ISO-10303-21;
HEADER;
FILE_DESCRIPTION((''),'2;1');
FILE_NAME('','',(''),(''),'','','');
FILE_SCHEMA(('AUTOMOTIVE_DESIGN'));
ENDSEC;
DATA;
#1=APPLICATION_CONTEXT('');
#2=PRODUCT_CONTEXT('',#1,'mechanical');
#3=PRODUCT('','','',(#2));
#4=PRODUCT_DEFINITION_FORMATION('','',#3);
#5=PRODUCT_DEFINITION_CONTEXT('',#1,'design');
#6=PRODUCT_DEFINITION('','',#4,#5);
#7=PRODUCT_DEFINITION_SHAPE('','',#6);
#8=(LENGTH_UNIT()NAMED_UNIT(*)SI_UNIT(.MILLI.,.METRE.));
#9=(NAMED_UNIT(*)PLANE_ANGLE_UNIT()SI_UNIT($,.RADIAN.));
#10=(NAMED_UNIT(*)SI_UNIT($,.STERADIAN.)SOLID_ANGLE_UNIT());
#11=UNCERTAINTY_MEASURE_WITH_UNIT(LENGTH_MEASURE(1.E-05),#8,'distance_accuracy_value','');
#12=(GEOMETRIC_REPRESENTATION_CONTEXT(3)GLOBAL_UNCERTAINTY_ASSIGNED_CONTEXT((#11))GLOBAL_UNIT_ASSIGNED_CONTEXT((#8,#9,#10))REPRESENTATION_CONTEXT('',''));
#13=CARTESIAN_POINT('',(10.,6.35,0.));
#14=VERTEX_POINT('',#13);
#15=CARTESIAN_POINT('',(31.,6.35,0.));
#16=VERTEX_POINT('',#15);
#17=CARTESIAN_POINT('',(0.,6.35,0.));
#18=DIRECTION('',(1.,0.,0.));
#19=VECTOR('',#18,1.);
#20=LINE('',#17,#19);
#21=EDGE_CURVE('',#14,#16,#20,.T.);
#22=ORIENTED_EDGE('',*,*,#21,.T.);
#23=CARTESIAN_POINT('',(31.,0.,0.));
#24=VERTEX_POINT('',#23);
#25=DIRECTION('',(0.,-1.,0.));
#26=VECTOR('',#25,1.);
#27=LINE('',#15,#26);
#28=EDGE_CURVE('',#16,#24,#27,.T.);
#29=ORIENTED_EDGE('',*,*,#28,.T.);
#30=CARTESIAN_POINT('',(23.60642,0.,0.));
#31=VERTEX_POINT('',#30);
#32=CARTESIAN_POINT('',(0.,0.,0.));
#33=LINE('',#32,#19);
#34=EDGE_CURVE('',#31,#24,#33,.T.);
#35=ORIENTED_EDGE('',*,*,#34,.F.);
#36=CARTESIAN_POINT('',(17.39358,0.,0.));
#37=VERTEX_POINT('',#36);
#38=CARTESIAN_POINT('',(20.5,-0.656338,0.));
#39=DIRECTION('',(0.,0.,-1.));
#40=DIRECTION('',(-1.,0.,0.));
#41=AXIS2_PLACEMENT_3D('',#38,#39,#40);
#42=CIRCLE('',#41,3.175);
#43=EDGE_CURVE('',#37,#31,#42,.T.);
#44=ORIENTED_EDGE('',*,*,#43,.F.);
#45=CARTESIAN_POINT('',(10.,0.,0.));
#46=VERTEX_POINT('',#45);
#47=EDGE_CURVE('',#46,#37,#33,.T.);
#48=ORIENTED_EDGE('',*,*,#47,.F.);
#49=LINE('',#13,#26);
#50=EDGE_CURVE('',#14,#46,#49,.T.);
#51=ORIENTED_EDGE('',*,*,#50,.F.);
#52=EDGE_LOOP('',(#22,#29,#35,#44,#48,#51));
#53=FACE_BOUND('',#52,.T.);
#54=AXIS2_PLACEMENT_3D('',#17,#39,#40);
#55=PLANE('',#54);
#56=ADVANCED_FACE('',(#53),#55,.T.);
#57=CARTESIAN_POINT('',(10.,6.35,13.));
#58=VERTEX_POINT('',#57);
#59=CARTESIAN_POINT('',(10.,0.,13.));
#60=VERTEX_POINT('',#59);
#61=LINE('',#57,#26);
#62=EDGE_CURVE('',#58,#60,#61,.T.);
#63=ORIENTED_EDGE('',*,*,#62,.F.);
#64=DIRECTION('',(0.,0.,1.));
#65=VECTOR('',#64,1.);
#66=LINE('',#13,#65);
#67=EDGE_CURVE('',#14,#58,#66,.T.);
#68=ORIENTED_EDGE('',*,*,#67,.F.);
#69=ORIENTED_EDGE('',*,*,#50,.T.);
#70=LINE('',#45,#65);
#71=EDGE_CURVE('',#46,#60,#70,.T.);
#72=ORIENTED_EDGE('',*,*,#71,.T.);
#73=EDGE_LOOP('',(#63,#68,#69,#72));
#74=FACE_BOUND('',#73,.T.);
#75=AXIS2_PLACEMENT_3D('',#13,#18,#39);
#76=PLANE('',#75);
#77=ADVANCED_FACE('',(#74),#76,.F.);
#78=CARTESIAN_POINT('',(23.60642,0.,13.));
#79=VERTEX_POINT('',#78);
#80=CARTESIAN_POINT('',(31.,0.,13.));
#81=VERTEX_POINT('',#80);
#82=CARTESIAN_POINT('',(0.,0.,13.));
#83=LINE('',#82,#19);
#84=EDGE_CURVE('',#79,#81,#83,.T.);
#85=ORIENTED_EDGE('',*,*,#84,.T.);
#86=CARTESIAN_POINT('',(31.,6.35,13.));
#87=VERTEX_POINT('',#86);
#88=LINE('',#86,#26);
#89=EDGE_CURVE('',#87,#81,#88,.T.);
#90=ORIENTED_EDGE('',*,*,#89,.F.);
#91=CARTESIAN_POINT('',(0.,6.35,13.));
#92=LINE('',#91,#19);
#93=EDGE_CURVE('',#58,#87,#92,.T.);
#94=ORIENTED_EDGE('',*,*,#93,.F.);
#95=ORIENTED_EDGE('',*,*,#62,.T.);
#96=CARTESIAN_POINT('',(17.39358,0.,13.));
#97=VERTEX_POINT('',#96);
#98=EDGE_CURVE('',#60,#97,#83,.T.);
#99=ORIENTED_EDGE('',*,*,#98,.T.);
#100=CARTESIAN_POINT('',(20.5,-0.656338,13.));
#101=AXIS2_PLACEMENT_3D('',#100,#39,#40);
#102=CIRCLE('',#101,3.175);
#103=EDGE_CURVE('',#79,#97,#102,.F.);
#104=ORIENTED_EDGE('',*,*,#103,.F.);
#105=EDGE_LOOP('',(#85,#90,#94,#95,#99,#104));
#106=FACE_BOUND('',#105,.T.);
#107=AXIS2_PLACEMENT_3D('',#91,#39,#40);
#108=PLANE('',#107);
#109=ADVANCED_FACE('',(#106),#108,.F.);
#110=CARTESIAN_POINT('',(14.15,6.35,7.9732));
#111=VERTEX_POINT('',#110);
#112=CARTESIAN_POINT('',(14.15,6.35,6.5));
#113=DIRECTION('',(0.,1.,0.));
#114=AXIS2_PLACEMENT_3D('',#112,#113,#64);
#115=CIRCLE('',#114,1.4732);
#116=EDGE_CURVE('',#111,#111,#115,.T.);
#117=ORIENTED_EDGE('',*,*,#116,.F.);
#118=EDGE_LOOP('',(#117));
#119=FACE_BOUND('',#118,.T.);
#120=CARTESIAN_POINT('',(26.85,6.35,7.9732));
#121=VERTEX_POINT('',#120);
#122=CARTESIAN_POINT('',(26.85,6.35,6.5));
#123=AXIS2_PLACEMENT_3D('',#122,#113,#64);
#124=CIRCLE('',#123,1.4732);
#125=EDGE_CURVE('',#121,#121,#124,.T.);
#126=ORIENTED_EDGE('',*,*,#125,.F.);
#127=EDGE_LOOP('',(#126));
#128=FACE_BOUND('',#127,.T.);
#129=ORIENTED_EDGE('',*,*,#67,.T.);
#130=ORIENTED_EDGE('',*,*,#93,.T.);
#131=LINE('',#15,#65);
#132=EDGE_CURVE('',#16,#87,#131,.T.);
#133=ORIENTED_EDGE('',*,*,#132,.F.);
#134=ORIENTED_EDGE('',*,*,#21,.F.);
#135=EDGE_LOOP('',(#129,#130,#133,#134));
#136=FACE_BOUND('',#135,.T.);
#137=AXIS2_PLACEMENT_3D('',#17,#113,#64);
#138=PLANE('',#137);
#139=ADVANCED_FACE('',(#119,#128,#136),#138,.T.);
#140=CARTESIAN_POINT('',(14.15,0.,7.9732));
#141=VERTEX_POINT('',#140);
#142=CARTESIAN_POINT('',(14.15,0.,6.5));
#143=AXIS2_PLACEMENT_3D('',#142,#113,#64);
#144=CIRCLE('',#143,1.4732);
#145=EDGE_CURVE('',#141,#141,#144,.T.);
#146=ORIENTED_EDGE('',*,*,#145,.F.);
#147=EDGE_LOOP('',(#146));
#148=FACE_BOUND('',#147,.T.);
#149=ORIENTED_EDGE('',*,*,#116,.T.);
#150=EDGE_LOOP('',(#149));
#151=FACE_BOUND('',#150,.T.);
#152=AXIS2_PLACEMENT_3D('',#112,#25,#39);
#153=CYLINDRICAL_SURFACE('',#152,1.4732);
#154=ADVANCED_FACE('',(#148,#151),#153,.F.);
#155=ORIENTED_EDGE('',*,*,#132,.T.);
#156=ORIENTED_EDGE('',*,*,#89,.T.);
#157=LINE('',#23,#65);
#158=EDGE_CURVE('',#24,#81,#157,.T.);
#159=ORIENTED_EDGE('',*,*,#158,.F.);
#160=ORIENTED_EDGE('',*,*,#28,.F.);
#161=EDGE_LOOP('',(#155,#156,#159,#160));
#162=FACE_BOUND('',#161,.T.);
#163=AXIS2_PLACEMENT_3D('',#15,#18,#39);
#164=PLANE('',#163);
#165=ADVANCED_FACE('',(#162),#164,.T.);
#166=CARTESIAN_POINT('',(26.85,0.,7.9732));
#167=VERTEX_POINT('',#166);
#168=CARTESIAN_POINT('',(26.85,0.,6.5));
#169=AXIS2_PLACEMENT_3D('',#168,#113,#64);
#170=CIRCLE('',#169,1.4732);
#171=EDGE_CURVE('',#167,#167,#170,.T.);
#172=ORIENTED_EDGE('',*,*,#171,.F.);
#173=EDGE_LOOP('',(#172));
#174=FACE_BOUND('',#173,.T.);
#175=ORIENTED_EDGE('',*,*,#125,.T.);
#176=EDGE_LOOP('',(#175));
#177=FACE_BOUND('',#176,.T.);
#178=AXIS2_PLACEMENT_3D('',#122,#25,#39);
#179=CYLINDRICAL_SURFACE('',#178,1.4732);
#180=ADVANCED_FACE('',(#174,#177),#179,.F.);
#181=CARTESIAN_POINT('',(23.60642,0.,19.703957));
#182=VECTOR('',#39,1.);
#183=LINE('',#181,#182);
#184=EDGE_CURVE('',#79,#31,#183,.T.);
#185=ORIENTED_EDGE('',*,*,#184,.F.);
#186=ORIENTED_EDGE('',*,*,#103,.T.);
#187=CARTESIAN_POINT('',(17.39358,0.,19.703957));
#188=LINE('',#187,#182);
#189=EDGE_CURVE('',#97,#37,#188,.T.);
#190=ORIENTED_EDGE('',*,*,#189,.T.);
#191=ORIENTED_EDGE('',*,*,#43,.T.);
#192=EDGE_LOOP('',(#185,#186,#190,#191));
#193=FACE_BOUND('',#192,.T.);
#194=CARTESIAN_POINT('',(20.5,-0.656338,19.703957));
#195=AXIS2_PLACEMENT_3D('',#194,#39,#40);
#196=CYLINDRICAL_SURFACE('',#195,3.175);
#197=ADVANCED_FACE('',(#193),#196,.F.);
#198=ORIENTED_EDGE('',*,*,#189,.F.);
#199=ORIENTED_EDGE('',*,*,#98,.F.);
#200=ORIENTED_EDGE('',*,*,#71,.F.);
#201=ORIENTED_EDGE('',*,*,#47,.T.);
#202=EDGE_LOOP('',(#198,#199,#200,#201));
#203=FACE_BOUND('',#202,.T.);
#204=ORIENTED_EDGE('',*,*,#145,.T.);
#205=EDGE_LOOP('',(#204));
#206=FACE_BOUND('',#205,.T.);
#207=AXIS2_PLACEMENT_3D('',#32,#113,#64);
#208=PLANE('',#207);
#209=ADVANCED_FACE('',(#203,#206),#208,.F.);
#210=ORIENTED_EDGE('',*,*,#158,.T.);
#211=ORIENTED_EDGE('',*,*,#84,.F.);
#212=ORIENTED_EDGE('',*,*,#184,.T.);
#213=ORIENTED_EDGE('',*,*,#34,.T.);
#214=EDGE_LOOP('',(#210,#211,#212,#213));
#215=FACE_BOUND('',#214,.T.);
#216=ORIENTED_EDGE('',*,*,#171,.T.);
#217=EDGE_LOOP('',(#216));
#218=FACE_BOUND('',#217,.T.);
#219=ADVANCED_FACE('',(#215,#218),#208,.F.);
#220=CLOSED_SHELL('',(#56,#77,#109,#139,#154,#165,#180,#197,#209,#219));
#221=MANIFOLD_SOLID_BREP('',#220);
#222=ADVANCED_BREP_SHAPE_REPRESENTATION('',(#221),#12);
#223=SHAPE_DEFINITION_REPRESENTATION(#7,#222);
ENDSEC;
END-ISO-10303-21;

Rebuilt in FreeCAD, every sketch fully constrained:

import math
import FreeCAD as App
import Part
import Sketcher

V = App.Vector


def add_polygon(sketch, points):
    """Adds a closed chain of lines whose ends are joined by coincident constraints."""
    first, n = sketch.GeometryCount, len(points)
    for a, b in zip(points, points[1:] + points[:1]):
        sketch.addGeometry(Part.LineSegment(App.Vector(*a, 0), App.Vector(*b, 0)), False)
    for i in range(n):
        sketch.addConstraint(Sketcher.Constraint("Coincident", first + i, 2, first + (i + 1) % n, 1))

doc = App.newDocument("Part")
body = doc.addObject("PartDesign::Body", "Body")

# Sketch on XZ plane
sketch1 = body.newObject("Sketcher::SketchObject", "Sketch")
sketch1.AttachmentSupport = (doc.getObject("XZ_Plane"), [""])
sketch1.MapMode = "FlatFace"
add_polygon(sketch1, [(10, 0), (10, 13), (31, 13), (31, 0)])  # lines 0-3
sketch1.addGeometry(Part.Circle(V(14.2, 6.5, 0), V(0, 0, 1), 1.5), False)  # 4
sketch1.addGeometry(Part.Circle(V(26.9, 6.5, 0), V(0, 0, 1), 1.5), False)  # 5
sketch1.addConstraint([
    Sketcher.Constraint("Vertical", 0),
    Sketcher.Constraint("Horizontal", 1),
    Sketcher.Constraint("Vertical", 2),
    Sketcher.Constraint("Horizontal", 3),
    Sketcher.Constraint("Equal", 4, 5),
    Sketcher.Constraint("PointOnObject", 2, 2, -1),
    Sketcher.Constraint("Horizontal", 4, 3, 5, 3),
    Sketcher.Constraint("DistanceX", 1, 1, 1, 2, 21.0),
    Sketcher.Constraint("DistanceY", 0, 1, 0, 2, 13.0),
    Sketcher.Constraint("DistanceX", -1, 1, 0, 2, 10.0),
    Sketcher.Constraint("Diameter", 4, 2.9464),
    Sketcher.Constraint("DistanceY", -1, 1, 4, 3, 6.5),
    Sketcher.Constraint("DistanceX", 4, 3, 5, 3, 12.7),
    Sketcher.Constraint("DistanceX", -1, 1, 4, 3, 14.15),
])
pad1 = body.newObject("PartDesign::Pad", "Pad")
pad1.Profile = sketch1
pad1.Length = 6.35
pad1.Reversed = True

# Sketch on XY plane
sketch2 = body.newObject("Sketcher::SketchObject", "Sketch001")
sketch2.AttachmentSupport = (doc.getObject("XY_Plane"), [""])
sketch2.MapMode = "FlatFace"
sketch2.addGeometry([
    Part.ArcOfCircle(Part.Circle(V(20.5, -0.7, 0), V(0, 0, 1), 3.2), math.radians(12), math.radians(168)),
    Part.ArcOfCircle(Part.Circle(V(20.5, -0.7, 0), V(0, 0, 1), 3.2), math.radians(-180), math.radians(12)),
    Part.ArcOfCircle(Part.Circle(V(20.5, -0.7, 0), V(0, 0, 1), 3.2), math.radians(168.07), math.radians(180)),
], False)
sketch2.addConstraint([
    Sketcher.Constraint("Tangent", 0, 1, 1, 2),
    Sketcher.Constraint("Tangent", 1, 1, 2, 2),
    Sketcher.Constraint("Tangent", 2, 1, 0, 2),
    Sketcher.Constraint("PointOnObject", 0, 1, -1),
    Sketcher.Constraint("PointOnObject", 2, 1, -1),
    Sketcher.Constraint("Horizontal", 2, 3, 1, 1),
    Sketcher.Constraint("Radius", 0, 3.175),
    Sketcher.Constraint("DistanceX", -1, 1, 0, 3, 20.5),
    Sketcher.Constraint("DistanceY", 0, 3, -1, 1, 0.656338),
])
pocket1 = body.newObject("PartDesign::Pocket", "Pocket")
pocket1.Profile = sketch2
pocket1.Length = 13
pocket1.Reversed = True

doc.recompute()
